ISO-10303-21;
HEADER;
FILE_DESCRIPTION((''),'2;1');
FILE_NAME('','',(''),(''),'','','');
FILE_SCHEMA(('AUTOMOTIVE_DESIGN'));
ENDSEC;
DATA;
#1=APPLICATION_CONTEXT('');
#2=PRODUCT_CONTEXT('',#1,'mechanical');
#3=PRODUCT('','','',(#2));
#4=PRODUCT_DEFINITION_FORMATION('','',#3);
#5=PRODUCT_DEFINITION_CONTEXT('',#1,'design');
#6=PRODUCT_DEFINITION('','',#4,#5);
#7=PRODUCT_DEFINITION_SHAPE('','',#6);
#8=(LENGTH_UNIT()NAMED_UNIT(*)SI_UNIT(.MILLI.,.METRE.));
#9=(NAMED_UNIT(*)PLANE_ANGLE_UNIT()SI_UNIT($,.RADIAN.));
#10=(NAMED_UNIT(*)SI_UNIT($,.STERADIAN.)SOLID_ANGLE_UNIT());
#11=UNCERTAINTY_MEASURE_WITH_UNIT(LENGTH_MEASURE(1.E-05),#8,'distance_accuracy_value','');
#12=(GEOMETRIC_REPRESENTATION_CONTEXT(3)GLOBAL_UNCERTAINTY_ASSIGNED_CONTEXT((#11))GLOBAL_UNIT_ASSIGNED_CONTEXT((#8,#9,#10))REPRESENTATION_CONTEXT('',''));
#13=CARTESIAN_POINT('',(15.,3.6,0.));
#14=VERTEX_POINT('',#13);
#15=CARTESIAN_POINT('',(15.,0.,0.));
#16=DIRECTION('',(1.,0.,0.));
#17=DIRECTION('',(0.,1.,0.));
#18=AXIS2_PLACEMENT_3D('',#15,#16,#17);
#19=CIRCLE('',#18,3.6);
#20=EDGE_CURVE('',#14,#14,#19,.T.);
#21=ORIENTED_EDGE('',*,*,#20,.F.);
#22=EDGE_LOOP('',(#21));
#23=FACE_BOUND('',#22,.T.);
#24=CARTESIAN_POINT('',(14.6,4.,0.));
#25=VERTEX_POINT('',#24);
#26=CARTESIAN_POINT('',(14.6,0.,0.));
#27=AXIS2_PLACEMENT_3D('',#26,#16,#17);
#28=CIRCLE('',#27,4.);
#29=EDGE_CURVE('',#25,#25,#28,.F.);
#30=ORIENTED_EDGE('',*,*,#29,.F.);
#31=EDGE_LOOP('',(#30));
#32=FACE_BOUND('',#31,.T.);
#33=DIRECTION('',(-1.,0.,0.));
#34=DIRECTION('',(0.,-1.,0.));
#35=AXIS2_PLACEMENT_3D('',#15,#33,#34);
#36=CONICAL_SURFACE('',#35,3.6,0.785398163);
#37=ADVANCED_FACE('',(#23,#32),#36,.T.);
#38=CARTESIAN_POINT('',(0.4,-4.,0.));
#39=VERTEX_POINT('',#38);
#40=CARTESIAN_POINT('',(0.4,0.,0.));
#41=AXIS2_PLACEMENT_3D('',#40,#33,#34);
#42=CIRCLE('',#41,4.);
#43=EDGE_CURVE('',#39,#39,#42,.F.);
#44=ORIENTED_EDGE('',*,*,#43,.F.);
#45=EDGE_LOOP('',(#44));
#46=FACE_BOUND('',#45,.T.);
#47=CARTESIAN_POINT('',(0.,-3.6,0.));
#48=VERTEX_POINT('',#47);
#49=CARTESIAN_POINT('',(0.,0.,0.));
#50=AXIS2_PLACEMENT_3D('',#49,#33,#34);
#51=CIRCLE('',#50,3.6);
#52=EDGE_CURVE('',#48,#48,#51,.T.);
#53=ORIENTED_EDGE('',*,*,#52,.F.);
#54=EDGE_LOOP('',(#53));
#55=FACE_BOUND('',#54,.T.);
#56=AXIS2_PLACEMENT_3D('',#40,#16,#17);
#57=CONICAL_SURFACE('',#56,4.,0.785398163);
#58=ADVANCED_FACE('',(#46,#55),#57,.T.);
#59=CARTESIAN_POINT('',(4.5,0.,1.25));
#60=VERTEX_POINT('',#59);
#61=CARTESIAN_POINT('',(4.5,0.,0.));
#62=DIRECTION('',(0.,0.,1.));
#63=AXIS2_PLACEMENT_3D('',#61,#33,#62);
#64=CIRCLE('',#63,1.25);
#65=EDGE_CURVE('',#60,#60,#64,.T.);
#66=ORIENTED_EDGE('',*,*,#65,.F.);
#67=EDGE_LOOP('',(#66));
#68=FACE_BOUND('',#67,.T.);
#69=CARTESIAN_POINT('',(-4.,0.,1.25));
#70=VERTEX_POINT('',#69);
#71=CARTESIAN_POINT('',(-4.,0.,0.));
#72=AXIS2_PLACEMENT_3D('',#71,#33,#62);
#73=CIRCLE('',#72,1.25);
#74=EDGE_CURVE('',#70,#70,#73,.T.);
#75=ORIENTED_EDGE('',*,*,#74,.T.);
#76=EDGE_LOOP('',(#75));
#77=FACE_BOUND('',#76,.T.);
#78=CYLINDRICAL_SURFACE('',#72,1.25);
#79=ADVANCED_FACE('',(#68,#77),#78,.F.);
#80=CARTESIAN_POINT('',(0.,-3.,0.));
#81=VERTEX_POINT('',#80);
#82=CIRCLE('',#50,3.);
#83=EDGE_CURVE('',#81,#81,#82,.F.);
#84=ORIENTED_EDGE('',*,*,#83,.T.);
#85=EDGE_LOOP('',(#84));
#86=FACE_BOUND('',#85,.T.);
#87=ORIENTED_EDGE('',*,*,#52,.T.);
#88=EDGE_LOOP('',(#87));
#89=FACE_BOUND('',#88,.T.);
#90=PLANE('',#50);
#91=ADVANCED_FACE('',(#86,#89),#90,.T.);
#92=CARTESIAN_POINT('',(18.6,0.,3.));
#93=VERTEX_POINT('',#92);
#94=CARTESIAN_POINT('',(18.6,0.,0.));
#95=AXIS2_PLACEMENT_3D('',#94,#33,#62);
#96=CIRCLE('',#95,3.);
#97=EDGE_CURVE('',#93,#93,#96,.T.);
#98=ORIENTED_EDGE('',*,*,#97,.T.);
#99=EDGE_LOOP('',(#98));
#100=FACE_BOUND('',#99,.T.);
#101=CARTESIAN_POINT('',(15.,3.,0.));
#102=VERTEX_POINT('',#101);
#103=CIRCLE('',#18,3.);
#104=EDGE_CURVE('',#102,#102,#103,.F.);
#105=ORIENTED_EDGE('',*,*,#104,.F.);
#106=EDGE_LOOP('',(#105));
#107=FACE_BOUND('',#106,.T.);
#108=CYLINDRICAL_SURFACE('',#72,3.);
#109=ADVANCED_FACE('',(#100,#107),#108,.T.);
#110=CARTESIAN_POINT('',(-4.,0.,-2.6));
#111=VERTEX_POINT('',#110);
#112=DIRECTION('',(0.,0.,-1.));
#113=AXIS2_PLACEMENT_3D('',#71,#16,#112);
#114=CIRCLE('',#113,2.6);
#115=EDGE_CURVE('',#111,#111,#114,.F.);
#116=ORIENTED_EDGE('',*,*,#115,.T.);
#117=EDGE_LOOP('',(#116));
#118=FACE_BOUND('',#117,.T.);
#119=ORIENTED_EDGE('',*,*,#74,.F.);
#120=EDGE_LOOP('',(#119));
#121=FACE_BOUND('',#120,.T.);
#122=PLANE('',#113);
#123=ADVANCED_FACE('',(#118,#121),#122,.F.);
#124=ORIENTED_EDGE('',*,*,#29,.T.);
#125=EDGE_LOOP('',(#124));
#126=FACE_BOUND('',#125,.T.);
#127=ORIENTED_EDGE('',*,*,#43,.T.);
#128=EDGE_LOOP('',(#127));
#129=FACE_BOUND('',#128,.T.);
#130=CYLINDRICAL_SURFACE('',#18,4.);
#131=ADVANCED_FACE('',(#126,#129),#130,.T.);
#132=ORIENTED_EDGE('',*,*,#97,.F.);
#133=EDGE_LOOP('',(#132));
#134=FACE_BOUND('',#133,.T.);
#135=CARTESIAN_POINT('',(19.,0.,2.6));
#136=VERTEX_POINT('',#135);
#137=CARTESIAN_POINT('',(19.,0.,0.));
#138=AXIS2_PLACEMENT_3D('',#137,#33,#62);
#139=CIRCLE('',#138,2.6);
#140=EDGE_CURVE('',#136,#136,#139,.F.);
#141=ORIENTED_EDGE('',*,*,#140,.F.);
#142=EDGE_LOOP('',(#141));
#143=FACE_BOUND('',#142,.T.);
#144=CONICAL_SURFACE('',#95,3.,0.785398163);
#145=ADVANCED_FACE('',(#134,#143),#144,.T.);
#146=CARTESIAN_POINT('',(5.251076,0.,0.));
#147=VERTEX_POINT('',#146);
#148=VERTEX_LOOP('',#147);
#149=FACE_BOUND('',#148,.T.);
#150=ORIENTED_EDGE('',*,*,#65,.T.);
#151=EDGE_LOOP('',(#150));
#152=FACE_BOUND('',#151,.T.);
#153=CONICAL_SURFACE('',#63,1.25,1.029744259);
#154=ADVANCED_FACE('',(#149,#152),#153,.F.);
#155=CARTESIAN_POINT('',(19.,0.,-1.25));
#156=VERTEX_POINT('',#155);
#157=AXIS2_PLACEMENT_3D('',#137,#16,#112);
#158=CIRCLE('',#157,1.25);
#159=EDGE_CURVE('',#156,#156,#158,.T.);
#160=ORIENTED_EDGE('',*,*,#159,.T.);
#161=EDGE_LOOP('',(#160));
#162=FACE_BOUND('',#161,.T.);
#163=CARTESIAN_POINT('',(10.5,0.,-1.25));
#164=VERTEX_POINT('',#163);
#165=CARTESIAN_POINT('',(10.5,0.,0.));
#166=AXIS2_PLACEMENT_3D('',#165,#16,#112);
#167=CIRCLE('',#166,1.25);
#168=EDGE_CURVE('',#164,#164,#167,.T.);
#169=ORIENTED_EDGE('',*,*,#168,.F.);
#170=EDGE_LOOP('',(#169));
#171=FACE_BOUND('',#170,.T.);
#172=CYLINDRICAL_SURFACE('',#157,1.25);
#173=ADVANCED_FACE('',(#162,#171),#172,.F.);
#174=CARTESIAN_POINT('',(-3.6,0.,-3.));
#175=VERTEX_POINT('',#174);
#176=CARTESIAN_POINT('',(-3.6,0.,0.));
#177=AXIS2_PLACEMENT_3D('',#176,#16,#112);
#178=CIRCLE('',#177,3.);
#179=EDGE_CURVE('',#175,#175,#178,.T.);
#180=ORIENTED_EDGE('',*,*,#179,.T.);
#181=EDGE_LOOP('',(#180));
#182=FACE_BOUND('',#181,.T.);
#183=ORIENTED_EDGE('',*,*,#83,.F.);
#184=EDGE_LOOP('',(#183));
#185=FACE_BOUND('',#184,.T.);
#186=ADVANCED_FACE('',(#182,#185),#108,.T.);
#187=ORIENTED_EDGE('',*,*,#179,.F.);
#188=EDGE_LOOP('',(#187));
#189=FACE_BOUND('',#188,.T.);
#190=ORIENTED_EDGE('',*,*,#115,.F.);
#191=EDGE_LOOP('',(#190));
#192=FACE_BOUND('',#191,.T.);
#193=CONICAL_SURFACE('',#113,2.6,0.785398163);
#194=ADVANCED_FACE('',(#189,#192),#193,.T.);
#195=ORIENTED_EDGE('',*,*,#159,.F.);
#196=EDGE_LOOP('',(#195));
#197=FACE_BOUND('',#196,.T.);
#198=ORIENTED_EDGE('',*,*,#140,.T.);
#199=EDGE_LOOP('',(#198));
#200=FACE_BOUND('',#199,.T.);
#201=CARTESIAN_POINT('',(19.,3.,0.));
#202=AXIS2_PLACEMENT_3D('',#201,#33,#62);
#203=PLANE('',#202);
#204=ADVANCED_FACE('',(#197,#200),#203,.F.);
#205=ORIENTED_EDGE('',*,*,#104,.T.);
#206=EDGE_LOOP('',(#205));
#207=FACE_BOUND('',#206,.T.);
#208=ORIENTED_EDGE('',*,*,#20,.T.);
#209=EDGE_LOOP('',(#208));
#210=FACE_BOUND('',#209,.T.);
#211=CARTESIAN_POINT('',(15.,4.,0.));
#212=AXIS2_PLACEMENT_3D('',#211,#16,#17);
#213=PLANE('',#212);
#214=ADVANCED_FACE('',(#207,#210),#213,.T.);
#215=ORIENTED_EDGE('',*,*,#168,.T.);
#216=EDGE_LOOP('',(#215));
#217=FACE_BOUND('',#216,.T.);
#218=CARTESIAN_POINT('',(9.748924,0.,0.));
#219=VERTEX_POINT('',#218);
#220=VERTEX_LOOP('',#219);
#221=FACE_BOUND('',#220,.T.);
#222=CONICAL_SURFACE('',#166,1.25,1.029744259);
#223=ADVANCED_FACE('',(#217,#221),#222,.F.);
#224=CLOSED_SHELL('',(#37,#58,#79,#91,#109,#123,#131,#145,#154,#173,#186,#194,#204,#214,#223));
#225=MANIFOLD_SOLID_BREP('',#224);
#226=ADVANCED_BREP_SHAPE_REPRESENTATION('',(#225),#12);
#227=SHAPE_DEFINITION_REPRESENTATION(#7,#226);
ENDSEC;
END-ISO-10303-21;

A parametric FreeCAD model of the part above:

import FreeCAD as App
import Part
import Sketcher
from FreeCAD import Vector


def edges_at(feature, points):
    """Names of the edges that pass closest to the given points."""
    edges = feature.Shape.Edges
    near = lambda p: min(range(len(edges)), key=lambda i: edges[i].distToShape(Part.Vertex(*p))[0])
    return sorted({f"Edge{near(p) + 1}" for p in points})


def add_polygon(sketch, points):
    """Adds a closed chain of lines whose ends are joined by coincident constraints."""
    first, n = sketch.GeometryCount, len(points)
    for a, b in zip(points, points[1:] + points[:1]):
        sketch.addGeometry(Part.LineSegment(App.Vector(*a, 0), App.Vector(*b, 0)), False)
    for i in range(n):
        sketch.addConstraint(Sketcher.Constraint("Coincident", first + i, 2, first + (i + 1) % n, 1))

doc = App.newDocument("Part")
body = doc.addObject("PartDesign::Body", "Body")

sketch1 = doc.addObject("Sketcher::SketchObject", "Sketch")
body.addObject(sketch1)
sketch1.AttachmentSupport = (doc.XY_Plane, [""])
sketch1.MapMode = "FlatFace"
add_polygon(sketch1, [(0, 4), (0, 0), (15, 0), (15, 4)])
sketch1.addConstraint(Sketcher.Constraint("Vertical", 0))
sketch1.addConstraint(Sketcher.Constraint("Horizontal", 1))
sketch1.addConstraint(Sketcher.Constraint("Vertical", 2))
sketch1.addConstraint(Sketcher.Constraint("Horizontal", 3))
sketch1.addConstraint(Sketcher.Constraint("Coincident", 0, 2, -1, 1))
sketch1.addConstraint(Sketcher.Constraint("DistanceX", 1, 1, 1, 2, 15.0))
sketch1.addConstraint(Sketcher.Constraint("DistanceY", 0, 2, 0, 1, 4.0))
revolution = doc.addObject("PartDesign::Revolution", "Revolution")
body.addObject(revolution)
revolution.Profile = sketch1
revolution.ReferenceAxis = (sketch1, ["H_Axis"])
revolution.Angle = 360
doc.recompute()

chamfer = doc.addObject("PartDesign::Chamfer", "Chamfer")
body.addObject(chamfer)
chamfer.Base = (revolution, edges_at(revolution, [(15, -4, 0), (0, -4, 0)]))
chamfer.Size = 0.4

sketch2 = doc.addObject("Sketcher::SketchObject", "Sketch001")
body.addObject(sketch2)
sketch2.AttachmentSupport = (doc.XY_Plane, [""])
sketch2.MapMode = "FlatFace"
add_polygon(sketch2, [(-4, 3), (-4, 0), (19, 0), (19, 3)])
sketch2.addConstraint(Sketcher.Constraint("Vertical", 0))
sketch2.addConstraint(Sketcher.Constraint("Horizontal", 1))
sketch2.addConstraint(Sketcher.Constraint("Vertical", 2))
sketch2.addConstraint(Sketcher.Constraint("Horizontal", 3))
sketch2.addConstraint(Sketcher.Constraint("PointOnObject", 0, 2, -1))
sketch2.addConstraint(Sketcher.Constraint("DistanceX", 1, 1, 1, 2, 23.0))
sketch2.addConstraint(Sketcher.Constraint("DistanceY", 0, 2, 0, 1, 3.0))
sketch2.addConstraint(Sketcher.Constraint("DistanceX", 0, 2, -1, 1, 4.0))
revolution2 = doc.addObject("PartDesign::Revolution", "Revolution001")
body.addObject(revolution2)
revolution2.Profile = sketch2
revolution2.ReferenceAxis = (sketch2, ["H_Axis"])
revolution2.Angle = 360

sketch3 = doc.addObject("Sketcher::SketchObject", "Sketch002")
body.addObject(sketch3)
sketch3.AttachmentSupport = (doc.YZ_Plane, [""])
sketch3.MapMode = "FlatFace"
sketch3.AttachmentOffset = App.Placement(Vector(0, 0, -4), App.Rotation())
sketch3.addGeometry(Part.Circle(Vector(0, 0, 0), Vector(0, 0, 1), 1.2), False)
sketch3.addConstraint(Sketcher.Constraint("Coincident", 0, 3, -1, 1))
sketch3.addConstraint(Sketcher.Constraint("Diameter", 0, 2.5))
doc.recompute()
hole = doc.addObject("PartDesign::Hole", "Hole")
body.addObject(hole)
hole.Profile = sketch3
hole.ThreadType = "None"
hole.Diameter = 2.5
hole.DepthType = "Dimension"
hole.Depth = 8.5
hole.DrillPoint = "Angled"
hole.DrillPointAngle = 118
hole.Reversed = True

sketch4 = doc.addObject("Sketcher::SketchObject", "Sketch003")
body.addObject(sketch4)
sketch4.AttachmentSupport = (doc.YZ_Plane, [""])
sketch4.MapMode = "FlatFace"
sketch4.AttachmentOffset = App.Placement(Vector(0, 0, 19), App.Rotation())
sketch4.addGeometry(Part.Circle(Vector(0, 0, 0), Vector(0, 0, 1), 1.2), False)
sketch4.addConstraint(Sketcher.Constraint("Coincident", 0, 3, -1, 1))
sketch4.addConstraint(Sketcher.Constraint("Diameter", 0, 2.5))
doc.recompute()
hole2 = doc.addObject("PartDesign::Hole", "Hole001")
body.addObject(hole2)
hole2.Profile = sketch4
hole2.ThreadType = "None"
hole2.Diameter = 2.5
hole2.DepthType = "Dimension"
hole2.Depth = 8.5
hole2.DrillPoint = "Angled"
hole2.DrillPointAngle = 118
doc.recompute()

chamfer2 = doc.addObject("PartDesign::Chamfer", "Chamfer001")
body.addObject(chamfer2)
chamfer2.Base = (hole2, edges_at(hole2, [(-4, 0, -3)]))
chamfer2.Size = 0.4
doc.recompute()

chamfer3 = doc.addObject("PartDesign::Chamfer", "Chamfer002")
body.addObject(chamfer3)
chamfer3.Base = (chamfer2, edges_at(chamfer2, [(19, 0, -3)]))
chamfer3.Size = 0.4

doc.recompute()
